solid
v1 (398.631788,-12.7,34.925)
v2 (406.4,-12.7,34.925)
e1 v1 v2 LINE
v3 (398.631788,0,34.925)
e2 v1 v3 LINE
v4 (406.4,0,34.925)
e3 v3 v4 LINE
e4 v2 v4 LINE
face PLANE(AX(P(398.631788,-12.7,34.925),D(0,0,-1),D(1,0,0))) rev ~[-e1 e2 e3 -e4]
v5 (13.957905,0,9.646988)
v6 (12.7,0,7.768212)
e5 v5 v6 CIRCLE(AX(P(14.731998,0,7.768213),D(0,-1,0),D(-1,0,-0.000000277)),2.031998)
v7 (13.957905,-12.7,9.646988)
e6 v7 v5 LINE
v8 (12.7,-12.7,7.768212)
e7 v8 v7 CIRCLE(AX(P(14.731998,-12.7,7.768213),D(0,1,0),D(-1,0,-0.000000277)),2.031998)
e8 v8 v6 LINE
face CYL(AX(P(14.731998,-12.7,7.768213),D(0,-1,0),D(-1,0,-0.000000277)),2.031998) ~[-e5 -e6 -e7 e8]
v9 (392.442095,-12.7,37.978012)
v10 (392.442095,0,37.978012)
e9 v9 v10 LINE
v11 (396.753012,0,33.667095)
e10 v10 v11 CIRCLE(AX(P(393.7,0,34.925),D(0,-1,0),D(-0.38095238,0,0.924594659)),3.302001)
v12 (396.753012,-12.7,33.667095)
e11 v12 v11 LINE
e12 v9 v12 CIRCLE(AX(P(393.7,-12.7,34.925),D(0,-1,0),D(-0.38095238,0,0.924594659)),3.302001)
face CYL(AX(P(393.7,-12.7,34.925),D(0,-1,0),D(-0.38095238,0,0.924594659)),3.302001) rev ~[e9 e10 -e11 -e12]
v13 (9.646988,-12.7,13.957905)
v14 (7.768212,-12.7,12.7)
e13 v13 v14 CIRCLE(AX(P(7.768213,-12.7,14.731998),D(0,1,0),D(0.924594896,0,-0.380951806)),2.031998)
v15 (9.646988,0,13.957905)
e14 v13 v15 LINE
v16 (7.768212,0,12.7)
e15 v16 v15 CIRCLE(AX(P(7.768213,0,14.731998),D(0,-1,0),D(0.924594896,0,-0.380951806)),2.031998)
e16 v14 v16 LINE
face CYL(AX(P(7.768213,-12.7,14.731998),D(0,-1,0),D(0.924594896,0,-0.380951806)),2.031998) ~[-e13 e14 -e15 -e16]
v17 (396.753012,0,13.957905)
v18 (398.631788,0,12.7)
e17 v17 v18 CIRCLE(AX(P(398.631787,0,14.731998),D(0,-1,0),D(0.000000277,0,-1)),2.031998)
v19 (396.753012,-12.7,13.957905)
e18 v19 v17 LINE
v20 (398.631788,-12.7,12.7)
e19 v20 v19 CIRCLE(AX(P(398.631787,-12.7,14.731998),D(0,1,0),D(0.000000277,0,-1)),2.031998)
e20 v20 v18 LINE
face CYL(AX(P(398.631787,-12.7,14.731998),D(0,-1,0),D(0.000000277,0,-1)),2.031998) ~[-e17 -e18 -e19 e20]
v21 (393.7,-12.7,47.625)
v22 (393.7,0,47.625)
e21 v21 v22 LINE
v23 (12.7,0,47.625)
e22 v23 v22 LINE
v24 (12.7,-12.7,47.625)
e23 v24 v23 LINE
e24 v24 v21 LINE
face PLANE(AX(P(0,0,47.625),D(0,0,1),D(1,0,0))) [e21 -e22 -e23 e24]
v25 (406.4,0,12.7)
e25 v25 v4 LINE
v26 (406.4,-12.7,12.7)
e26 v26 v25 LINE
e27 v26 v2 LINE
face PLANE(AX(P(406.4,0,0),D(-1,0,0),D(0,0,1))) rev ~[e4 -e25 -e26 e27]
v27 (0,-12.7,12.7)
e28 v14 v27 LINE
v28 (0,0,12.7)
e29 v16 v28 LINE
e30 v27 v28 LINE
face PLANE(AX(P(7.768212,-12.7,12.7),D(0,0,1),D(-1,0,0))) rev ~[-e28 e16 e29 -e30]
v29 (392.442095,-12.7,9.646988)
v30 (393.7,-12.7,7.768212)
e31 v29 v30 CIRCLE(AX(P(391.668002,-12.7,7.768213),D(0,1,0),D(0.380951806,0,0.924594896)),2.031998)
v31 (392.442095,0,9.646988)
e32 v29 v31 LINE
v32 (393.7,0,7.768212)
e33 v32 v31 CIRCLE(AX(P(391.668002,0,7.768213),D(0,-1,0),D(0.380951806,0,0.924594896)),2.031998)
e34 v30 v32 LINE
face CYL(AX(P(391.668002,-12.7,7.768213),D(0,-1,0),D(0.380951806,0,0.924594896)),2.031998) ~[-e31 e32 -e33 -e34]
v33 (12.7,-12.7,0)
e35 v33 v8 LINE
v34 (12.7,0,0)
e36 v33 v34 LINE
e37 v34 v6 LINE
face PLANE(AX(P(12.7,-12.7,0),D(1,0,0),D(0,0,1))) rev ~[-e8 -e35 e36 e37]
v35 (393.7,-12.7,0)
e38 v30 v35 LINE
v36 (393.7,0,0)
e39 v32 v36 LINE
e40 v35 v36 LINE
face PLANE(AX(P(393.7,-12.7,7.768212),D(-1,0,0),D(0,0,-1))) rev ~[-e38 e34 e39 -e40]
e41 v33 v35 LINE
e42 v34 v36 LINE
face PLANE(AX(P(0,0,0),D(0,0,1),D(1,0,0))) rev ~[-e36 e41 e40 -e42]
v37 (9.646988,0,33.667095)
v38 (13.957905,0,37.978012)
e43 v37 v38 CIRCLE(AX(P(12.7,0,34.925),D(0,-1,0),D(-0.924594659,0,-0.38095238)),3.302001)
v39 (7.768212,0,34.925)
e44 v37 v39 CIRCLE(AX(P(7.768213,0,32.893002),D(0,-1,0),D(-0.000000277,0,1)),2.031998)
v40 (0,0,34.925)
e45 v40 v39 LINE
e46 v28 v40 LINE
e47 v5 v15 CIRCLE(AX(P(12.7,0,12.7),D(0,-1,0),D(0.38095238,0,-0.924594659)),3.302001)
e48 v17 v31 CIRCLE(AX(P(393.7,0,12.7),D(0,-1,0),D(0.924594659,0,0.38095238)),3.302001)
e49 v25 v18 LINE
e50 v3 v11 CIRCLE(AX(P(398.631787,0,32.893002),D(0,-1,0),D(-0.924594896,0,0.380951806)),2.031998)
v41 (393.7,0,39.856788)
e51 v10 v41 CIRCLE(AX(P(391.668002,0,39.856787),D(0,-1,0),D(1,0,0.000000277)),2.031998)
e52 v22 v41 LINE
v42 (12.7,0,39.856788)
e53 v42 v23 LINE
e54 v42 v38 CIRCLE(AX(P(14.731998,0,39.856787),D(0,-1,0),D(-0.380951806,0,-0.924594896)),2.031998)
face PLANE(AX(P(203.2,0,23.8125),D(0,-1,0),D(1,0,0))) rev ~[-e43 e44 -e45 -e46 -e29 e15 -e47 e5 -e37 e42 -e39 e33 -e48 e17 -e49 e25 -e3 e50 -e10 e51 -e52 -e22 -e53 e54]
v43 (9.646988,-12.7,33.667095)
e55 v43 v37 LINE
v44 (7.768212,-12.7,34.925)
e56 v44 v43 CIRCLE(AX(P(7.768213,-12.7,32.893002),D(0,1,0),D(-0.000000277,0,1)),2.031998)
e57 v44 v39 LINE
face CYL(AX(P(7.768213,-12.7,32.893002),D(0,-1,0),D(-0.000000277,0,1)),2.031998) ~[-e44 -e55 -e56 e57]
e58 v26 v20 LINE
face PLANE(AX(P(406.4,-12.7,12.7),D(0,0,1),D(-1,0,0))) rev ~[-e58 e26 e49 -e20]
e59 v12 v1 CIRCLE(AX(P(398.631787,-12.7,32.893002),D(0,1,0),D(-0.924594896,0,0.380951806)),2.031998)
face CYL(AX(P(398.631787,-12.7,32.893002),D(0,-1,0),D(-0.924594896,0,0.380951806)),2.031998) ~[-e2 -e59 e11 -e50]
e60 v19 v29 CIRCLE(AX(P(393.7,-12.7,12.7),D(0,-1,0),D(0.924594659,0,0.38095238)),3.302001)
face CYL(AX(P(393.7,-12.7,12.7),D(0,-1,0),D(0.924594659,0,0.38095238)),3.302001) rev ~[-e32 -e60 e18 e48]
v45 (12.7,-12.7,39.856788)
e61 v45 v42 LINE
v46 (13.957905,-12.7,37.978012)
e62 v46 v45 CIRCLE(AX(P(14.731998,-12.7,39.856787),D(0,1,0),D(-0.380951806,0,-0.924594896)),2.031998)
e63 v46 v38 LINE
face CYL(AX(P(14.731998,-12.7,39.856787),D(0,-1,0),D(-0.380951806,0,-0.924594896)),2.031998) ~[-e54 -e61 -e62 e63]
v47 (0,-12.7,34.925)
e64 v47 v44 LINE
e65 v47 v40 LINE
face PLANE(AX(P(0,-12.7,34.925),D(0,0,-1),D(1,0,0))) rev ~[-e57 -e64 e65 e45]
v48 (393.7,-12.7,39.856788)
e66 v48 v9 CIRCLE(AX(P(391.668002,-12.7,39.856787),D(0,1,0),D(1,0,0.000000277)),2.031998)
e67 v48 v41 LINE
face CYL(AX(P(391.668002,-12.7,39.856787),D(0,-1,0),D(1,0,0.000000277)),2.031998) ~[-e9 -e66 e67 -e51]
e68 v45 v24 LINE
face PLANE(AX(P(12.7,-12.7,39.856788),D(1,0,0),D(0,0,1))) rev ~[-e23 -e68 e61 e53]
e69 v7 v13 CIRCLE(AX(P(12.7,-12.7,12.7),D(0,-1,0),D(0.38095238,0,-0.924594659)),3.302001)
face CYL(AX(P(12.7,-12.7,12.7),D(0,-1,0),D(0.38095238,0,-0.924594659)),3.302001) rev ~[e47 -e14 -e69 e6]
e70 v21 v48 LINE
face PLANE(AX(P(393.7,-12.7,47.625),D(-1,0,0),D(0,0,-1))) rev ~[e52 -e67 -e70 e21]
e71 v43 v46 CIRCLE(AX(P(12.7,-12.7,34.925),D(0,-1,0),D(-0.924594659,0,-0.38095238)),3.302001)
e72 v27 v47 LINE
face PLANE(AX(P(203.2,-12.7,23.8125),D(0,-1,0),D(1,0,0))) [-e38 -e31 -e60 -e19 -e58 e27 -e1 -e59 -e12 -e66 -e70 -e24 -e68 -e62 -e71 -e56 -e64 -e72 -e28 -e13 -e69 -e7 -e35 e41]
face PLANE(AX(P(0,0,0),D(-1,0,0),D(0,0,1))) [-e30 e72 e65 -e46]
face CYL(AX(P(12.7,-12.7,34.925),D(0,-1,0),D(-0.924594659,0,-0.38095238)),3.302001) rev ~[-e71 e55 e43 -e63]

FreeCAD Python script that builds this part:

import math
import FreeCAD as App
import Part
import Sketcher
Q = App.Units.Quantity

doc = App.newDocument("Part")
params = doc.addObject("Spreadsheet::Sheet", "Params")
for row, (alias, value) in enumerate([
    ("sketch1_width", "16 in"),
    ("sketch1_height", "1.875 in"),
    ("pad1_length", "0.5 in"),
    ("sketch2_radius", "0.0799999 in"),
    ("sketch2_radius2", "0.13 in"),
    ("sketch2_width", "0.5 in"),
    ("pocket1_length", "1 in"),
], start=1):
    params.set(f"A{row}", alias)
    params.set(f"B{row}", "=" + value)
    params.setAlias(f"B{row}", alias)

body = doc.addObject("PartDesign::Body", "Body")

sketch1 = body.newObject("Sketcher::SketchObject", "Sketch")
sketch1.AttachmentSupport = (doc.getObject("XZ_Plane"), [""])
sketch1.MapMode = "FlatFace"
sketch1.addGeometry([
    Part.LineSegment(App.Vector(0, 48, 0), App.Vector(0, 0, 0)),
    Part.LineSegment(App.Vector(0, 0, 0), App.Vector(406, 0, 0)),
    Part.LineSegment(App.Vector(406, 0, 0), App.Vector(406, 48, 0)),
    Part.LineSegment(App.Vector(406, 48, 0), App.Vector(0, 48, 0)),
], False)
sketch1.addConstraint([
    Sketcher.Constraint("Coincident", 0, 2, 1, 1),
    Sketcher.Constraint("Coincident", 1, 2, 2, 1),
    Sketcher.Constraint("Coincident", 2, 2, 3, 1),
    Sketcher.Constraint("Coincident", 3, 2, 0, 1),
    Sketcher.Constraint("Vertical", 0),
    Sketcher.Constraint("Horizontal", 1),
    Sketcher.Constraint("Vertical", 2),
    Sketcher.Constraint("Horizontal", 3),
    Sketcher.Constraint("Coincident", 0, 2, -1, 1),
    Sketcher.Constraint("DistanceX", 1, 1, 1, 2, Q("16 in")),
    Sketcher.Constraint("DistanceY", 0, 2, 0, 1, Q("1.875 in")),
])
sketch1.setExpression("Constraints[9]", "Params.sketch1_width")
sketch1.setExpression("Constraints[10]", "Params.sketch1_height")
pad1 = body.newObject("PartDesign::Pad", "Pad")
pad1.Profile = sketch1
pad1.setExpression("Length", "Params.pad1_length")

sketch2 = body.newObject("Sketcher::SketchObject", "Sketch001")
sketch2.AttachmentSupport = (doc.getObject("XZ_Plane"), [""])
sketch2.MapMode = "FlatFace"
sketch2.AttachmentOffset = App.Placement(App.Vector(0, 0, 0.5 * 25.4), App.Rotation())
sketch2.addGeometry([
    Part.LineSegment(App.Vector(12.7, 47.6, 0), App.Vector(0, 47.6, 0)),
    Part.LineSegment(App.Vector(0, 47.6, 0), App.Vector(0, 34.9, 0)),
    Part.LineSegment(App.Vector(0, 34.9, 0), App.Vector(7.8, 34.9, 0)),
    Part.ArcOfCircle(Part.Circle(App.Vector(7.8, 32.9, 0), App.Vector(0, 0, 1), 2), math.radians(22), math.radians(90)),
    Part.ArcOfCircle(Part.Circle(App.Vector(12.7, 34.9, 0), App.Vector(0, 0, 1), 3.3), math.radians(-158), math.radians(68)),
    Part.ArcOfCircle(Part.Circle(App.Vector(14.7, 39.9, 0), App.Vector(0, 0, 1), 2), math.radians(180), math.radians(248)),
    Part.LineSegment(App.Vector(12.7, 39.9, 0), App.Vector(12.7, 47.6, 0)),
    Part.LineSegment(App.Vector(0, 12.7, 0), App.Vector(0, 0, 0)),
    Part.LineSegment(App.Vector(0, 0, 0), App.Vector(12.7, 0, 0)),
    Part.LineSegment(App.Vector(12.7, 0, 0), App.Vector(12.7, 7.8, 0)),
    Part.ArcOfCircle(Part.Circle(App.Vector(14.7, 7.8, 0), App.Vector(0, 0, 1), 2), math.radians(112), math.radians(180)),
    Part.ArcOfCircle(Part.Circle(App.Vector(12.7, 12.7, 0), App.Vector(0, 0, 1), 3.3), math.radians(-68), math.radians(158)),
    Part.ArcOfCircle(Part.Circle(App.Vector(7.8, 14.7, 0), App.Vector(0, 0, 1), 2), math.radians(-90), math.radians(-22)),
    Part.LineSegment(App.Vector(7.8, 12.7, 0), App.Vector(0, 12.7, 0)),
    Part.LineSegment(App.Vector(406.4, 12.7, 0), App.Vector(398.6, 12.7, 0)),
    Part.ArcOfCircle(Part.Circle(App.Vector(398.6, 14.7, 0), App.Vector(0, 0, 1), 2), math.radians(-158), math.radians(-90)),
    Part.ArcOfCircle(Part.Circle(App.Vector(393.7, 12.7, 0), App.Vector(0, 0, 1), 3.3), math.radians(22), math.radians(248)),
    Part.ArcOfCircle(Part.Circle(App.Vector(391.7, 7.8, 0), App.Vector(0, 0, 1), 2), math.radians(0), math.radians(68)),
    Part.LineSegment(App.Vector(393.7, 7.8, 0), App.Vector(393.7, 0, 0)),
    Part.LineSegment(App.Vector(393.7, 0, 0), App.Vector(406.4, 0, 0)),
    Part.LineSegment(App.Vector(406.4, 0, 0), App.Vector(406.4, 12.7, 0)),
    Part.ArcOfCircle(Part.Circle(App.Vector(393.7, 34.9, 0), App.Vector(0, 0, 1), 3.3), math.radians(112), math.radians(338)),
    Part.ArcOfCircle(Part.Circle(App.Vector(398.6, 32.9, 0), App.Vector(0, 0, 1), 2), math.radians(90), math.radians(158)),
    Part.LineSegment(App.Vector(398.6, 34.9, 0), App.Vector(406.4, 34.9, 0)),
    Part.LineSegment(App.Vector(406.4, 34.9, 0), App.Vector(406.4, 47.6, 0)),
    Part.LineSegment(App.Vector(406.4, 47.6, 0), App.Vector(393.7, 47.6, 0)),
    Part.LineSegment(App.Vector(393.7, 47.6, 0), App.Vector(393.7, 39.9, 0)),
    Part.ArcOfCircle(Part.Circle(App.Vector(391.7, 39.9, 0), App.Vector(0, 0, 1), 2), math.radians(-68), math.radians(0)),
], False)
sketch2.addConstraint([
    Sketcher.Constraint("Coincident", 0, 2, 1, 1),
    Sketcher.Constraint("Coincident", 1, 2, 2, 1),
    Sketcher.Constraint("Tangent", 2, 2, 3, 2),
    Sketcher.Constraint("Tangent", 3, 1, 4, 1),
    Sketcher.Constraint("Tangent", 4, 2, 5, 2),
    Sketcher.Constraint("Tangent", 5, 1, 6, 1),
    Sketcher.Constraint("Coincident", 6, 2, 0, 1),
    Sketcher.Constraint("Coincident", 7, 2, 8, 1),
    Sketcher.Constraint("Coincident", 8, 2, 9, 1),
    Sketcher.Constraint("Tangent", 9, 2, 10, 2),
    Sketcher.Constraint("Tangent", 10, 1, 11, 1),
    Sketcher.Constraint("Tangent", 11, 2, 12, 2),
    Sketcher.Constraint("Tangent", 12, 1, 13, 1),
    Sketcher.Constraint("Coincident", 13, 2, 7, 1),
    Sketcher.Constraint("Tangent", 14, 2, 15, 2),
    Sketcher.Constraint("Tangent", 15, 1, 16, 1),
    Sketcher.Constraint("Tangent", 16, 2, 17, 2),
    Sketcher.Constraint("Tangent", 17, 1, 18, 1),
    Sketcher.Constraint("Coincident", 18, 2, 19, 1),
    Sketcher.Constraint("Coincident", 19, 2, 20, 1),
    Sketcher.Constraint("Coincident", 20, 2, 14, 1),
    Sketcher.Constraint("Tangent", 21, 2, 22, 2),
    Sketcher.Constraint("Tangent", 22, 1, 23, 1),
    Sketcher.Constraint("Coincident", 23, 2, 24, 1),
    Sketcher.Constraint("Coincident", 24, 2, 25, 1),
    Sketcher.Constraint("Coincident", 25, 2, 26, 1),
    Sketcher.Constraint("Tangent", 26, 2, 27, 2),
    Sketcher.Constraint("Tangent", 27, 1, 21, 1),
    Sketcher.Constraint("Horizontal", 0),
    Sketcher.Constraint("Vertical", 1),
    Sketcher.Constraint("Horizontal", 2),
    Sketcher.Constraint("Vertical", 6),
    Sketcher.Constraint("Vertical", 7),
    Sketcher.Constraint("Horizontal", 8),
    Sketcher.Constraint("Vertical", 9),
    Sketcher.Constraint("Horizontal", 13),
    Sketcher.Constraint("Horizontal", 14),
    Sketcher.Constraint("Vertical", 18),
    Sketcher.Constraint("Horizontal", 19),
    Sketcher.Constraint("Vertical", 20),
    Sketcher.Constraint("Horizontal", 23),
    Sketcher.Constraint("Vertical", 24),
    Sketcher.Constraint("Horizontal", 25),
    Sketcher.Constraint("Vertical", 26),
    Sketcher.Constraint("Coincident", 7, 2, -1, 1),
    Sketcher.Constraint("Equal", 3, 5),
    Sketcher.Constraint("Equal", 5, 10),
    Sketcher.Constraint("Equal", 4, 11),
    Sketcher.Constraint("Equal", 10, 12),
    Sketcher.Constraint("Equal", 12, 15),
    Sketcher.Constraint("Equal", 11, 16),
    Sketcher.Constraint("Equal", 15, 17),
    Sketcher.Constraint("Equal", 16, 21),
    Sketcher.Constraint("Equal", 17, 22),
    Sketcher.Constraint("Equal", 22, 27),
    Sketcher.Constraint("PointOnObject", 0, 2, -2),
    Sketcher.Constraint("PointOnObject", 18, 2, -1),
    Sketcher.Constraint("Horizontal", 12, 3, 15, 3),
    Sketcher.Constraint("Horizontal", 11, 3, 16, 3),
    Sketcher.Constraint("Horizontal", 10, 3, 17, 3),
    Sketcher.Constraint("Horizontal", 4, 3, 21, 3),
    Sketcher.Constraint("Horizontal", 3, 3, 22, 3),
    Sketcher.Constraint("Horizontal", 5, 3, 27, 3),
    Sketcher.Constraint("Horizontal", 21, 3, 1, 2),
    Sketcher.Constraint("Horizontal", 16, 3, 12, 1),
    Sketcher.Constraint("Horizontal", 6, 2, 24, 2),
    Sketcher.Constraint("Vertical", 5, 3, 10, 3),
    Sketcher.Constraint("Vertical", 4, 3, 11, 3),
    Sketcher.Constraint("Vertical", 16, 3, 21, 3),
    Sketcher.Constraint("Vertical", 11, 3, 5, 1),
    Sketcher.Constraint("Vertical", 20, 2, 23, 2),
    Sketcher.Constraint("Equal", 13, 14),
    Sketcher.Constraint("Equal", 25, 1),
    Sketcher.Constraint("Equal", 1, 7),
    Sketcher.Constraint("Radius", 3, Q("0.0799999 in")),
    Sketcher.Constraint("Radius", 4, Q("0.13 in")),
    Sketcher.Constraint("DistanceX", 0, 2, 0, 1, Q("0.5 in")),
    Sketcher.Constraint("DistanceX", -1, 1, 19, 2, Q("16 in")),
    Sketcher.Constraint("DistanceY", -1, 1, 3, 3, Q("1.2950001 in")),
])
sketch2.setExpression("Constraints[74]", "Params.sketch2_radius")
sketch2.setExpression("Constraints[75]", "Params.sketch2_radius2")
sketch2.setExpression("Constraints[76]", "Params.sketch2_width")
pocket1 = body.newObject("PartDesign::Pocket", "Pocket")
pocket1.Profile = sketch2
pocket1.setExpression("Length", "Params.pocket1_length")

doc.recompute()
